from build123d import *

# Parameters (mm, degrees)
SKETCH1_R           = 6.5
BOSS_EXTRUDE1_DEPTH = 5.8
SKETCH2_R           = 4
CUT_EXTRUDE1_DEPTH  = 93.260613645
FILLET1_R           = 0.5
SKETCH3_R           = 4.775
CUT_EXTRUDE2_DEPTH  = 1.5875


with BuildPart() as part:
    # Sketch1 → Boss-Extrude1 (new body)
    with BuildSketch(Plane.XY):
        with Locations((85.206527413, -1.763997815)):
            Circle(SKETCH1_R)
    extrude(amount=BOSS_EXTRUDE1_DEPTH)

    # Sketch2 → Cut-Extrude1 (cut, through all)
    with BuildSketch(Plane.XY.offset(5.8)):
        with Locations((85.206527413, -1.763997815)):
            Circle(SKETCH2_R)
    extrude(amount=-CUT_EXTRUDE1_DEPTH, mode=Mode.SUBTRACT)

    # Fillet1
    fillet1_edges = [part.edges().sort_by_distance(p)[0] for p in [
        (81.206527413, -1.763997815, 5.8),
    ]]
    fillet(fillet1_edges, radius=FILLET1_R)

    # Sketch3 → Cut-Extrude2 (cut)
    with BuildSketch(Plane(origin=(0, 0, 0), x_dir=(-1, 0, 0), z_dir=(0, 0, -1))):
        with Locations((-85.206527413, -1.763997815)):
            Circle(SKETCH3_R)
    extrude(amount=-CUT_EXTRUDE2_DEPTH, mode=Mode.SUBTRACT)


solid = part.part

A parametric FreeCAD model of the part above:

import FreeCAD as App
import Part
import Sketcher


def edges_at(feature, points):
    """Names of the edges that pass closest to the given points."""
    edges = feature.Shape.Edges
    near = lambda p: min(range(len(edges)), key=lambda i: edges[i].distToShape(Part.Vertex(*p))[0])
    return sorted({f"Edge{near(p) + 1}" for p in points})

doc = App.newDocument("Part")
body = doc.addObject("PartDesign::Body", "Body")

# Sketch on XY plane
sketch1 = body.newObject("Sketcher::SketchObject", "Sketch")
sketch1.AttachmentSupport = (doc.getObject("XY_Plane"), [""])
sketch1.MapMode = "FlatFace"
sketch1.addGeometry(Part.Circle(App.Vector(85, -2, 0), App.Vector(0, 0, 1), 6), False)
sketch1.addConstraint([
    Sketcher.Constraint("Diameter", 0, 13.0),
    Sketcher.Constraint("DistanceX", -1, 1, 0, 3, 85.206527),
    Sketcher.Constraint("DistanceY", 0, 3, -1, 1, 1.763998),
])
pad1 = body.newObject("PartDesign::Pad", "Pad")
pad1.Profile = sketch1
pad1.Length = 5.8

# Sketch on XY plane
sketch2 = body.newObject("Sketcher::SketchObject", "Sketch001")
sketch2.AttachmentSupport = (doc.getObject("XY_Plane"), [""])
sketch2.MapMode = "FlatFace"
sketch2.AttachmentOffset = App.Placement(App.Vector(0, 0, 5.8), App.Rotation())
sketch2.addGeometry(Part.Circle(App.Vector(85.2, -1.8, 0), App.Vector(0, 0, 1), 4), False)
sketch2.addConstraint([
    Sketcher.Constraint("Diameter", 0, 8.0),
    Sketcher.Constraint("DistanceX", -1, 1, 0, 3, 85.206527),
    Sketcher.Constraint("DistanceY", 0, 3, -1, 1, 1.763998),
])
pocket1 = body.newObject("PartDesign::Pocket", "Pocket")
pocket1.Profile = sketch2
pocket1.Type = "ThroughAll"
doc.recompute()

fillet = body.newObject("PartDesign::Fillet", "Fillet")
fillet.Base = (pocket1, edges_at(pocket1, [(81.207, -1.764, 5.8)]))
fillet.Radius = 0.5

# Sketch on XY plane
sketch3 = body.newObject("Sketcher::SketchObject", "Sketch002")
sketch3.AttachmentSupport = (doc.getObject("XY_Plane"), [""])
sketch3.MapMode = "FlatFace"
sketch3.addGeometry(Part.Circle(App.Vector(85.2, -1.8, 0), App.Vector(0, 0, 1), 4.8), False)
sketch3.addConstraint([
    Sketcher.Constraint("Diameter", 0, 9.55),
    Sketcher.Constraint("DistanceX", -1, 1, 0, 3, 85.206527),
    Sketcher.Constraint("DistanceY", 0, 3, -1, 1, 1.763998),
])
pocket2 = body.newObject("PartDesign::Pocket", "Pocket001")
pocket2.Profile = sketch3
pocket2.Length = 1.5875
pocket2.Reversed = True

doc.recompute()
